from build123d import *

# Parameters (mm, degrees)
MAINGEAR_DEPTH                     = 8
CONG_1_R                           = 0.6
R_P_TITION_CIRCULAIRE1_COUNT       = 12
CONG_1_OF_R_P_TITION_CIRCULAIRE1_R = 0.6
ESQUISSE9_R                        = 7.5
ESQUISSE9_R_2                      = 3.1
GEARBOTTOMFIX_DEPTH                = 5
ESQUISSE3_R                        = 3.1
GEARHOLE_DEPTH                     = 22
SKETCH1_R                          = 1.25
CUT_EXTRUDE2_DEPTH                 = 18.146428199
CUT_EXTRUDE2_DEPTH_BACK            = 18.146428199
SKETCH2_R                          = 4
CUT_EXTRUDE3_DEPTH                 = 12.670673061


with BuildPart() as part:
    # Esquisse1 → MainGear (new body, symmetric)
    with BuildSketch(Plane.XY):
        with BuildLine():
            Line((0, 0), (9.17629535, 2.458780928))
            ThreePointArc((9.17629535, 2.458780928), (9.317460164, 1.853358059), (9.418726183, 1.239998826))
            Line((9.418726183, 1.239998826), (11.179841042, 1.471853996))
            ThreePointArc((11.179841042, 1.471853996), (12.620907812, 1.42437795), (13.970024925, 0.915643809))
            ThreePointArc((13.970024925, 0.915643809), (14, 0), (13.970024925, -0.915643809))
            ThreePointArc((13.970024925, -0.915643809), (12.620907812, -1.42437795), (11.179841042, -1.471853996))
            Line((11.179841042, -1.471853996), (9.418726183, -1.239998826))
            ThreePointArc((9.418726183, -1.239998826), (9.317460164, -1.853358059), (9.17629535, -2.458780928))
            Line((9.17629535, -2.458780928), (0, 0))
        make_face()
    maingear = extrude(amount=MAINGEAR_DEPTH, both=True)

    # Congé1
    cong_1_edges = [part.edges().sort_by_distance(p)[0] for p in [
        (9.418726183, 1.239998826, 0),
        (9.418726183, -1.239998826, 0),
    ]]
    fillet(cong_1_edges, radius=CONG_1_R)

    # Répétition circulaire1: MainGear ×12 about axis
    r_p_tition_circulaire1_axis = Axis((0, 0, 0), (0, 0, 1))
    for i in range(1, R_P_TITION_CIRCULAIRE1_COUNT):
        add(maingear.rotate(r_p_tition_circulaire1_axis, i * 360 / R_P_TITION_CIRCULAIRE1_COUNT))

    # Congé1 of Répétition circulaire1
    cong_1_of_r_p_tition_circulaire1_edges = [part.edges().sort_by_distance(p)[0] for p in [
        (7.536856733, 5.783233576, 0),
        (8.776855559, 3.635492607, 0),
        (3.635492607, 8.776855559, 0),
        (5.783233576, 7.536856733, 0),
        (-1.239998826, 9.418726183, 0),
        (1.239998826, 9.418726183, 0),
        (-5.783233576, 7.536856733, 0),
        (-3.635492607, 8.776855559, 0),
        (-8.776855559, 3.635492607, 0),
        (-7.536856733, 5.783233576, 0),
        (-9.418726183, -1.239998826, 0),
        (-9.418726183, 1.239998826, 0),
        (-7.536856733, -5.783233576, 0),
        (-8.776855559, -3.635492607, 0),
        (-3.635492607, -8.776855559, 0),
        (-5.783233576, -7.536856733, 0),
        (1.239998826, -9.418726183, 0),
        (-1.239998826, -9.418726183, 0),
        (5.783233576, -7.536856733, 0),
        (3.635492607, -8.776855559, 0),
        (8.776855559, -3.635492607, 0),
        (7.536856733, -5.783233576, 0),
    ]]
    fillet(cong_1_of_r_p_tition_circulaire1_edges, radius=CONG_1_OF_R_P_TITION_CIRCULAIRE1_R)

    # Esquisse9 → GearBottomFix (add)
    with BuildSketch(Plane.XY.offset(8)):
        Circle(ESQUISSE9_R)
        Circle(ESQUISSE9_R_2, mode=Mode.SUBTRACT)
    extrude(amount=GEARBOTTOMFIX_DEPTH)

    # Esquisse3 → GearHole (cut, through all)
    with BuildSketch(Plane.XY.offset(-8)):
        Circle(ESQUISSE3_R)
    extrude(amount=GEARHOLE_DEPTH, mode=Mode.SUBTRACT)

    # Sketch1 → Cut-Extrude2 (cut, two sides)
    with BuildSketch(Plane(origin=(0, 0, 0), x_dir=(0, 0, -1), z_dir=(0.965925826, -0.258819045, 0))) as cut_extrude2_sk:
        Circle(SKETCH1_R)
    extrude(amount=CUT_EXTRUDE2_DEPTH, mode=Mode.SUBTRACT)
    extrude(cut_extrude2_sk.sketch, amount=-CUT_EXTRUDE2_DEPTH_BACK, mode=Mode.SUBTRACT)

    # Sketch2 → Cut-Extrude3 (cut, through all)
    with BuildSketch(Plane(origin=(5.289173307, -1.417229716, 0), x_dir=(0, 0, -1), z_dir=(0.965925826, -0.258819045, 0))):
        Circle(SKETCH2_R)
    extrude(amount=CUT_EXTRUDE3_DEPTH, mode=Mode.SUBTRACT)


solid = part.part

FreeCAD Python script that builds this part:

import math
import FreeCAD as App
import Part
import Sketcher
Q = App.Units.Quantity


def edges_at(feature, points):
    """Names of the edges that pass closest to the given points."""
    edges = feature.Shape.Edges
    near = lambda p: min(range(len(edges)), key=lambda i: edges[i].distToShape(Part.Vertex(*p))[0])
    return sorted({f"Edge{near(p) + 1}" for p in points})

doc = App.newDocument("Part")
params = doc.addObject("Spreadsheet::Sheet", "Params")
for row, (alias, value) in enumerate([
    ("sketch1_radius", "14 mm"),
    ("sketch1_radius2", "9.5 mm"),
    ("pad1_length", "16 mm"),
    ("fillet_radius", "0.6 mm"),
    ("fillet2_radius", "0.6 mm"),
    ("sketch2_diameter", "15 mm"),
    ("sketch2_diameter2", "6.2 mm"),
    ("pad2_length", "5 mm"),
    ("sketch3_diameter", "6.2 mm"),
    ("sketch4_diameter", "2.5 mm"),
    ("sketch5_diameter", "8 mm"),
], start=1):
    params.set(f"A{row}", alias)
    params.set(f"B{row}", "=" + value)
    params.setAlias(f"B{row}", alias)

body = doc.addObject("PartDesign::Body", "Body")

sketch1 = body.newObject("Sketcher::SketchObject", "Sketch")
sketch1.AttachmentSupport = (doc.getObject("XY_Plane"), [""])
sketch1.MapMode = "FlatFace"
sketch1.addGeometry([
    Part.LineSegment(App.Vector(9.2, 2.5, 0), App.Vector(0, 0, 0)),
    Part.LineSegment(App.Vector(0, 0, 0), App.Vector(9.2, -2.5, 0)),
    Part.ArcOfCircle(Part.Circle(App.Vector(0, 0, 0), App.Vector(0, 0, 1), 9.5), math.radians(-15), math.radians(-7.5)),
    Part.LineSegment(App.Vector(9.4, -1.2, 0), App.Vector(11.2, -1.5, 0)),
    Part.ArcOfCircle(Part.Circle(App.Vector(11.8, 2.9, 0), App.Vector(0, 0, 1), 4.4), math.radians(-97), math.radians(-60)),
    Part.ArcOfCircle(Part.Circle(App.Vector(0, 0, 0), App.Vector(0, 0, 1), 14), math.radians(-3.75), math.radians(3.75)),
    Part.ArcOfCircle(Part.Circle(App.Vector(11.8, -2.9, 0), App.Vector(0, 0, 1), 4.4), math.radians(60), math.radians(97)),
    Part.LineSegment(App.Vector(11.2, 1.5, 0), App.Vector(9.4, 1.2, 0)),
    Part.ArcOfCircle(Part.Circle(App.Vector(0, 0, 0), App.Vector(0, 0, 1), 9.5), math.radians(7.5), math.radians(15)),
], False)
sketch1.addConstraint([
    Sketcher.Constraint("Coincident", 0, 2, 1, 1),
    Sketcher.Constraint("Coincident", 1, 2, 2, 1),
    Sketcher.Constraint("Coincident", 2, 2, 3, 1),
    Sketcher.Constraint("Tangent", 3, 2, 4, 1),
    Sketcher.Constraint("Coincident", 4, 2, 5, 1),
    Sketcher.Constraint("Coincident", 5, 2, 6, 1),
    Sketcher.Constraint("Tangent", 6, 2, 7, 1),
    Sketcher.Constraint("Coincident", 7, 2, 8, 1),
    Sketcher.Constraint("Coincident", 8, 2, 0, 1),
    Sketcher.Constraint("Coincident", 2, 3, -1, 1),
    Sketcher.Constraint("Coincident", 5, 3, -1, 1),
    Sketcher.Constraint("Coincident", 8, 3, -1, 1),
    Sketcher.Constraint("Coincident", 0, 2, -1, 1),
    Sketcher.Constraint("Equal", 4, 6),
    Sketcher.Constraint("Equal", 2, 8),
    Sketcher.Constraint("Symmetric", 4, 3, 6, 3, -1),
    Sketcher.Constraint("Vertical", 3, 2, 6, 2),
    Sketcher.Constraint("Vertical", 1, 2, 8, 2),
    Sketcher.Constraint("Radius", 5, Q("14 mm")),
    Sketcher.Constraint("Radius", 2, Q("9.5 mm")),
    Sketcher.Constraint("Angle", 0, Q("-165 deg")),
    Sketcher.Constraint("Angle", 3, Q("-7.5 deg")),
    Sketcher.Constraint("DistanceY", 2, 2, -1, 1, Q("1.239999 mm")),
    Sketcher.Constraint("Radius", 4, Q("4.420112 mm")),
    Sketcher.Constraint("DistanceY", 6, 3, 4, 2, Q("1.994799 mm")),
])
sketch1.setExpression("Constraints[18]", "Params.sketch1_radius")
sketch1.setExpression("Constraints[19]", "Params.sketch1_radius2")
pad1 = body.newObject("PartDesign::Pad", "Pad")
pad1.Profile = sketch1
pad1.setExpression("Length", "Params.pad1_length")
pad1.Midplane = True
doc.recompute()

fillet = body.newObject("PartDesign::Fillet", "Fillet")
fillet.Base = (pad1, edges_at(pad1, [(9.419, 1.24, 0), (9.419, -1.24, 0)]))
fillet.setExpression("Radius", "Params.fillet_radius")
doc.recompute()

polarpattern = body.newObject("PartDesign::PolarPattern", "PolarPattern")
polarpattern.Originals = [pad1]
polarpattern.Axis = (doc.getObject("Z_Axis"), [""])
polarpattern.Angle = 360
polarpattern.Occurrences = 12
body.Tip = polarpattern
doc.recompute()

fillet2 = body.newObject("PartDesign::Fillet", "Fillet001")
fillet2.Base = (polarpattern, edges_at(polarpattern, [
    (7.537, 5.783, 0),
    (8.777, 3.635, 0),
    (3.635, 8.777, 0),
    (5.783, 7.537, 0),
    (-1.24, 9.419, 0),
    (1.24, 9.419, 0),
    (-5.783, 7.537, 0),
    (-3.635, 8.777, 0),
    (-8.777, 3.635, 0),
    (-7.537, 5.783, 0),
    (-9.419, -1.24, 0),
    (-9.419, 1.24, 0),
    (-7.537, -5.783, 0),
    (-8.777, -3.635, 0),
    (-3.635, -8.777, 0),
    (-5.783, -7.537, 0),
    (1.24, -9.419, 0),
    (-1.24, -9.419, 0),
    (5.783, -7.537, 0),
    (3.635, -8.777, 0),
    (8.777, -3.635, 0),
    (7.537, -5.783, 0),
]))
fillet2.setExpression("Radius", "Params.fillet2_radius")

sketch2 = body.newObject("Sketcher::SketchObject", "Sketch001")
sketch2.AttachmentSupport = (doc.getObject("XY_Plane"), [""])
sketch2.MapMode = "FlatFace"
sketch2.AttachmentOffset = App.Placement(App.Vector(0, 0, 8), App.Rotation())
sketch2.addGeometry([
    Part.Circle(App.Vector(0, 0, 0), App.Vector(0, 0, 1), 7.5),
    Part.Circle(App.Vector(0, 0, 0), App.Vector(0, 0, 1), 3.1),
], False)
sketch2.addConstraint([
    Sketcher.Constraint("Coincident", 0, 3, -1, 1),
    Sketcher.Constraint("Coincident", 1, 3, -1, 1),
    Sketcher.Constraint("Diameter", 0, Q("15 mm")),
    Sketcher.Constraint("Diameter", 1, Q("6.2 mm")),
])
sketch2.setExpression("Constraints[2]", "Params.sketch2_diameter")
sketch2.setExpression("Constraints[3]", "Params.sketch2_diameter2")
pad2 = body.newObject("PartDesign::Pad", "Pad001")
pad2.Profile = sketch2
pad2.setExpression("Length", "Params.pad2_length")

sketch3 = body.newObject("Sketcher::SketchObject", "Sketch002")
sketch3.AttachmentSupport = (doc.getObject("XY_Plane"), [""])
sketch3.MapMode = "FlatFace"
sketch3.AttachmentOffset = App.Placement(App.Vector(0, 0, -8), App.Rotation())
sketch3.addGeometry(Part.Circle(App.Vector(0, 0, 0), App.Vector(0, 0, 1), 3.1), False)
sketch3.addConstraint([
    Sketcher.Constraint("Coincident", 0, 3, -1, 1),
    Sketcher.Constraint("Diameter", 0, Q("6.2 mm")),
])
sketch3.setExpression("Constraints[1]", "Params.sketch3_diameter")
pocket1 = body.newObject("PartDesign::Pocket", "Pocket")
pocket1.Profile = sketch3
pocket1.Type = "ThroughAll"
pocket1.Reversed = True

sketch4 = body.newObject("Sketcher::SketchObject", "Sketch003")
sketch4.Placement = App.Placement(App.Vector(0, 0, 0), App.Rotation(App.Vector(0, 0, -1), App.Vector(0.258819045, 0.965925826, 0), App.Vector(0.965925826, -0.258819045, 0), "ZXY"))
sketch4.addGeometry(Part.Circle(App.Vector(0, 0, 0), App.Vector(0, 0, 1), 1.2), False)
sketch4.addConstraint([
    Sketcher.Constraint("Coincident", 0, 3, -1, 1),
    Sketcher.Constraint("Diameter", 0, Q("2.5 mm")),
])
sketch4.setExpression("Constraints[1]", "Params.sketch4_diameter")
pocket2 = body.newObject("PartDesign::Pocket", "Pocket001")
pocket2.Profile = sketch4
pocket2.Type = "ThroughAll"
pocket2.Midplane = True

sketch5 = body.newObject("Sketcher::SketchObject", "Sketch004")
sketch5.Placement = App.Placement(App.Vector(5.289173, -1.41723, 0), App.Rotation(App.Vector(0, 0, -1), App.Vector(0.258819045, 0.965925826, 0), App.Vector(0.965925826, -0.258819045, 0), "ZXY"))
sketch5.addGeometry(Part.Circle(App.Vector(0, 0, 0), App.Vector(0, 0, 1), 4), False)
sketch5.addConstraint([
    Sketcher.Constraint("Coincident", 0, 3, -1, 1),
    Sketcher.Constraint("Diameter", 0, Q("8 mm")),
])
sketch5.setExpression("Constraints[1]", "Params.sketch5_diameter")
pocket3 = body.newObject("PartDesign::Pocket", "Pocket002")
pocket3.Profile = sketch5
pocket3.Type = "ThroughAll"
pocket3.Reversed = True

doc.recompute()
